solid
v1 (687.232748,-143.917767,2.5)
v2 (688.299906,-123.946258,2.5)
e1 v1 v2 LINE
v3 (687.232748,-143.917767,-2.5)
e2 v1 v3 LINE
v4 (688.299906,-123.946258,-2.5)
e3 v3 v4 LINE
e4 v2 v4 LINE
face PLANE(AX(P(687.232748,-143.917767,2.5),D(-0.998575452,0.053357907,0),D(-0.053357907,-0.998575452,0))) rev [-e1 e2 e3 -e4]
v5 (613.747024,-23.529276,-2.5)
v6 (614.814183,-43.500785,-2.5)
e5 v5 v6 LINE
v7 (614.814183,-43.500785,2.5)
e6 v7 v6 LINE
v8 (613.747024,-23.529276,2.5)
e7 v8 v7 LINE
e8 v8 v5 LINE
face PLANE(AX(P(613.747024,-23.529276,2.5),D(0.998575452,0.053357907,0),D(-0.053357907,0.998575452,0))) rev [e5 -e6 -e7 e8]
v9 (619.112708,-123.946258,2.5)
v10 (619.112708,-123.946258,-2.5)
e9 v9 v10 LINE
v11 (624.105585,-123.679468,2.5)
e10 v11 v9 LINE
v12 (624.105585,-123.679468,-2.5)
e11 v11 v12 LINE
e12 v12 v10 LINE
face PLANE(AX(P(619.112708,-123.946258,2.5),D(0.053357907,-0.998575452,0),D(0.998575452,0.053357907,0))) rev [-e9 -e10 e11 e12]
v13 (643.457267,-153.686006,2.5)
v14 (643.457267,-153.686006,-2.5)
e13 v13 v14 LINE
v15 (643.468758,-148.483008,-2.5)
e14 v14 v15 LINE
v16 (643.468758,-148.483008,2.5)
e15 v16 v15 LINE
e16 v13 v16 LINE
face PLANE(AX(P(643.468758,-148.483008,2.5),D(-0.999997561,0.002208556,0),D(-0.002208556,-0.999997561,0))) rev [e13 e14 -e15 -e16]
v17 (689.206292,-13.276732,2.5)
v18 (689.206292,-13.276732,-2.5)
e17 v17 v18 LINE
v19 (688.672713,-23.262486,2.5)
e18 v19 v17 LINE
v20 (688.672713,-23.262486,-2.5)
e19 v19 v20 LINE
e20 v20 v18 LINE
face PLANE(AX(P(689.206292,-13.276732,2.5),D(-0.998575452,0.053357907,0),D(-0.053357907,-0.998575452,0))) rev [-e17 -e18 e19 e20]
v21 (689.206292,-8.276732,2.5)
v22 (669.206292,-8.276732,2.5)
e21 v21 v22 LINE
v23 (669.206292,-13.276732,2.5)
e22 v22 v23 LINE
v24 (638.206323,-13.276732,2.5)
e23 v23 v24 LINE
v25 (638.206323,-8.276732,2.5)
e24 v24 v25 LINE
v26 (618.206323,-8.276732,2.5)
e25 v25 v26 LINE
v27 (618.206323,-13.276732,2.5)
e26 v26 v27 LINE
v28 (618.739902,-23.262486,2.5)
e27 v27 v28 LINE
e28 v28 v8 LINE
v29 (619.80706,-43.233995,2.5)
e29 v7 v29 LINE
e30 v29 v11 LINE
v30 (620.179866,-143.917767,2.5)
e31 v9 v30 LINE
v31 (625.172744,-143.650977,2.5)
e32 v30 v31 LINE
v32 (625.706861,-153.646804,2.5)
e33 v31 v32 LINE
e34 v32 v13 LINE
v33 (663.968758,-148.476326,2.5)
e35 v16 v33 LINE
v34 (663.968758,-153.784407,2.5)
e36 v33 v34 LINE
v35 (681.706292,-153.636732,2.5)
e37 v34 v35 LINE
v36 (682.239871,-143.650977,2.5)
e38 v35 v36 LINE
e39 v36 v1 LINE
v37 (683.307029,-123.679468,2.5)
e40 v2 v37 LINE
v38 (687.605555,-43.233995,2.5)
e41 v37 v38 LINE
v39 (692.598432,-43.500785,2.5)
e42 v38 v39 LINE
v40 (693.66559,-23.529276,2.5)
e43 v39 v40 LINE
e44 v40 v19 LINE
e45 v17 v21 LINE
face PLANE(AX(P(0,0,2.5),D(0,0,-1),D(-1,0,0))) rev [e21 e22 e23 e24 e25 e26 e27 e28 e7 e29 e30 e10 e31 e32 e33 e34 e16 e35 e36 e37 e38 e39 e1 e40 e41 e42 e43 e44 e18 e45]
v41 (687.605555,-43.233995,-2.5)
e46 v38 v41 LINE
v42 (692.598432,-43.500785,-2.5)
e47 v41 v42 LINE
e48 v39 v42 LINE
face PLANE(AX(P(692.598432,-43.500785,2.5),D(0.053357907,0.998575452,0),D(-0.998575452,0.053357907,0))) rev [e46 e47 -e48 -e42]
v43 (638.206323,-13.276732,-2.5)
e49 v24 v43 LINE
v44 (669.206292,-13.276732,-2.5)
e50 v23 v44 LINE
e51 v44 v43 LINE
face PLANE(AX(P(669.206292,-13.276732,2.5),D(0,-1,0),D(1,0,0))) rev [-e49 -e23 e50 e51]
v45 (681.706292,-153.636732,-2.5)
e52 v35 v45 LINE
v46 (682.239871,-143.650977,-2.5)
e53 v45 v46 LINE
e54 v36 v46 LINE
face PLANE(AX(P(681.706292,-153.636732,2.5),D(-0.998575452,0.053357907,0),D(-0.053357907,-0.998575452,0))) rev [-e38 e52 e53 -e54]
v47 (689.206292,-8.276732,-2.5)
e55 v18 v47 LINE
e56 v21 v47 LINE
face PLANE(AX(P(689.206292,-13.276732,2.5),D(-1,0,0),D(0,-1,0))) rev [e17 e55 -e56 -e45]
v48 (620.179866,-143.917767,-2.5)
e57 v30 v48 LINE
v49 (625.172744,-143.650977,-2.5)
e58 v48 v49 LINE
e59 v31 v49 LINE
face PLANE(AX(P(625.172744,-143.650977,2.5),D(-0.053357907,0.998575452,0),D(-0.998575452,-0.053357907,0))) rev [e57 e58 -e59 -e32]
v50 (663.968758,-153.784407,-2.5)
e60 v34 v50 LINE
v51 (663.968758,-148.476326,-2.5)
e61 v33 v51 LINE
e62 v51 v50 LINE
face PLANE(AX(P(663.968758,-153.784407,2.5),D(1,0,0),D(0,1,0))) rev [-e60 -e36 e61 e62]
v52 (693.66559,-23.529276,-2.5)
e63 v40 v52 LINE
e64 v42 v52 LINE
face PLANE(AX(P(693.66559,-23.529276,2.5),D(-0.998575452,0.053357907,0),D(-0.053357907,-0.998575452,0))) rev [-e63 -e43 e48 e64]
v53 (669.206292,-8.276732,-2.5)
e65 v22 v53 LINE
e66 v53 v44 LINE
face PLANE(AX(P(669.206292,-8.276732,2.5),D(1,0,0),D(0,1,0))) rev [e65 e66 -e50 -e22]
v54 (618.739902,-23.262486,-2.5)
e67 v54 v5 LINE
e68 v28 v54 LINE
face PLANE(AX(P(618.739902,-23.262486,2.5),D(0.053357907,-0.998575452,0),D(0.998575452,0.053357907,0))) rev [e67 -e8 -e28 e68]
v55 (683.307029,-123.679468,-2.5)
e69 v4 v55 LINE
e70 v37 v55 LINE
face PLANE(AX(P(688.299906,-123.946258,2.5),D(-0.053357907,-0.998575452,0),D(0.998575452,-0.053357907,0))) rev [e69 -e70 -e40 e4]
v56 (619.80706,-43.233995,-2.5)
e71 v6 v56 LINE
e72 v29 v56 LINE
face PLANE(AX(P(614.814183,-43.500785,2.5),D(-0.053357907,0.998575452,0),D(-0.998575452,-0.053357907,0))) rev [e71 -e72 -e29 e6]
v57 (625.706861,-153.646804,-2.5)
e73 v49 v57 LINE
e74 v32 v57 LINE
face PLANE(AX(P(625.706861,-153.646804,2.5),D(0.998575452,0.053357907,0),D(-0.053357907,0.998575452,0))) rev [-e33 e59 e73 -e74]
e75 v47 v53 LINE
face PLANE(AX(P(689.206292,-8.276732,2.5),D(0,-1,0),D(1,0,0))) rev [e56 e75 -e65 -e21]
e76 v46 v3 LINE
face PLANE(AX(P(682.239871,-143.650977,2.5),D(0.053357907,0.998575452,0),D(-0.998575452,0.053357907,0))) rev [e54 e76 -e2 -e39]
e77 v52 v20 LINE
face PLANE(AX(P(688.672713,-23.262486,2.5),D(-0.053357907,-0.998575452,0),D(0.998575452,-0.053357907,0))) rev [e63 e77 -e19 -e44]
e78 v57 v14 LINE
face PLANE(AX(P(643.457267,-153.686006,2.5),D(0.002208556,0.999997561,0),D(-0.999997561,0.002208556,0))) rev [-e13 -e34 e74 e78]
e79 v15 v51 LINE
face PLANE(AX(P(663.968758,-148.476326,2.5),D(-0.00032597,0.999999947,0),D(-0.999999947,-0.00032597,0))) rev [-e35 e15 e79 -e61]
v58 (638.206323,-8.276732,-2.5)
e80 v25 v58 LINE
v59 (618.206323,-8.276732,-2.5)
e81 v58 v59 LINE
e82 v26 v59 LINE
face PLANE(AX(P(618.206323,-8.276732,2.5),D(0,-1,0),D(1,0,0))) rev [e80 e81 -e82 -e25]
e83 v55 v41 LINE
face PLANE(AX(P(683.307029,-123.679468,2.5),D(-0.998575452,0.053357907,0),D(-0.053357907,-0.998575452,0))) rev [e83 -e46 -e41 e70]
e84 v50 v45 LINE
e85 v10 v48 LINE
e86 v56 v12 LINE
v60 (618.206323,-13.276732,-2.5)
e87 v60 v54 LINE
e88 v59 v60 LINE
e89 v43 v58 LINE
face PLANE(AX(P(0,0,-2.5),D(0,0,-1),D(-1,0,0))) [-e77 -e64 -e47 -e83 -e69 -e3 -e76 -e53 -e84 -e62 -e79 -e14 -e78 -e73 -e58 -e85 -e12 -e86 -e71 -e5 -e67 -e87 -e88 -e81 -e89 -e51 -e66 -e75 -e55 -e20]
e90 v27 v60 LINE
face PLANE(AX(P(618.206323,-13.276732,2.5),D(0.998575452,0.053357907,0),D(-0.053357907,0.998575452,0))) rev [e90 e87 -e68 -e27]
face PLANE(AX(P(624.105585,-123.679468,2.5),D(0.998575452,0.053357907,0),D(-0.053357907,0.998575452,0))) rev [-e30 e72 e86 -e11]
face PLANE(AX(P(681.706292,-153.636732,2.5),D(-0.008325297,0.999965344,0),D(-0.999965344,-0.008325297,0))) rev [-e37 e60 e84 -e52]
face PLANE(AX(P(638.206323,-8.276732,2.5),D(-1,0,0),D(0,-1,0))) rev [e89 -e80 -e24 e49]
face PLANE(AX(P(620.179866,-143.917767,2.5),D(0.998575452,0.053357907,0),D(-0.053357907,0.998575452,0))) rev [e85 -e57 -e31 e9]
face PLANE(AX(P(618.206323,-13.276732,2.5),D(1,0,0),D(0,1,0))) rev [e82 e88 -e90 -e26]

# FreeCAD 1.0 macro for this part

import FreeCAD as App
import Part
import Sketcher

doc = App.newDocument("Part")
body = doc.addObject("PartDesign::Body", "Body")

sketch1 = body.newObject("Sketcher::SketchObject", "Sketch")
sketch1.AttachmentSupport = (doc.getObject("XY_Plane"), [""])
sketch1.MapMode = "FlatFace"
sketch1.addGeometry([
    Part.LineSegment(App.Vector(681.706292, -153.636732, 0), App.Vector(682.239871, -143.650977, 0)),
    Part.LineSegment(App.Vector(682.239871, -143.650977, 0), App.Vector(687.232748, -143.917767, 0)),
    Part.LineSegment(App.Vector(687.232748, -143.917767, 0), App.Vector(688.299906, -123.946258, 0)),
    Part.LineSegment(App.Vector(688.299906, -123.946258, 0), App.Vector(683.307029, -123.679468, 0)),
    Part.LineSegment(App.Vector(683.307029, -123.679468, 0), App.Vector(687.605555, -43.233995, 0)),
    Part.LineSegment(App.Vector(687.605555, -43.233995, 0), App.Vector(692.598432, -43.500785, 0)),
    Part.LineSegment(App.Vector(692.598432, -43.500785, 0), App.Vector(693.66559, -23.529276, 0)),
    Part.LineSegment(App.Vector(693.66559, -23.529276, 0), App.Vector(688.672713, -23.262486, 0)),
    Part.LineSegment(App.Vector(688.672713, -23.262486, 0), App.Vector(689.206292, -13.276732, 0)),
    Part.LineSegment(App.Vector(689.206292, -13.276732, 0), App.Vector(689.206292, -8.276732, 0)),
    Part.LineSegment(App.Vector(689.206292, -8.276732, 0), App.Vector(669.206292, -8.276732, 0)),
    Part.LineSegment(App.Vector(669.206292, -8.276732, 0), App.Vector(669.206292, -13.276732, 0)),
    Part.LineSegment(App.Vector(669.206292, -13.276732, 0), App.Vector(638.206323, -13.276732, 0)),
    Part.LineSegment(App.Vector(638.206323, -13.276732, 0), App.Vector(638.206323, -8.276732, 0)),
    Part.LineSegment(App.Vector(638.206323, -8.276732, 0), App.Vector(618.206323, -8.276732, 0)),
    Part.LineSegment(App.Vector(618.206323, -8.276732, 0), App.Vector(618.206323, -13.276732, 0)),
    Part.LineSegment(App.Vector(618.206323, -13.276732, 0), App.Vector(618.739902, -23.262486, 0)),
    Part.LineSegment(App.Vector(618.739902, -23.262486, 0), App.Vector(613.747024, -23.529276, 0)),
    Part.LineSegment(App.Vector(613.747024, -23.529276, 0), App.Vector(614.814183, -43.500785, 0)),
    Part.LineSegment(App.Vector(614.814183, -43.500785, 0), App.Vector(619.80706, -43.233995, 0)),
    Part.LineSegment(App.Vector(619.80706, -43.233995, 0), App.Vector(624.105585, -123.679468, 0)),
    Part.LineSegment(App.Vector(624.105585, -123.679468, 0), App.Vector(619.112708, -123.946258, 0)),
    Part.LineSegment(App.Vector(619.112708, -123.946258, 0), App.Vector(620.179866, -143.917767, 0)),
    Part.LineSegment(App.Vector(620.179866, -143.917767, 0), App.Vector(625.172744, -143.650977, 0)),
    Part.LineSegment(App.Vector(625.172744, -143.650977, 0), App.Vector(625.706861, -153.646804, 0)),
    Part.LineSegment(App.Vector(625.706861, -153.646804, 0), App.Vector(643.457267, -153.686006, 0)),
    Part.LineSegment(App.Vector(643.457267, -153.686006, 0), App.Vector(643.468758, -148.483008, 0)),
    Part.LineSegment(App.Vector(643.468758, -148.483008, 0), App.Vector(663.968758, -148.476326, 0)),
    Part.LineSegment(App.Vector(663.968758, -148.476326, 0), App.Vector(663.968758, -153.784407, 0)),
    Part.LineSegment(App.Vector(663.968758, -153.784407, 0), App.Vector(681.706292, -153.636732, 0)),
], False)
sketch1.addConstraint([
    Sketcher.Constraint("Coincident", 0, 2, 1, 1),
    Sketcher.Constraint("Coincident", 1, 2, 2, 1),
    Sketcher.Constraint("Coincident", 2, 2, 3, 1),
    Sketcher.Constraint("Coincident", 3, 2, 4, 1),
    Sketcher.Constraint("Coincident", 4, 2, 5, 1),
    Sketcher.Constraint("Coincident", 5, 2, 6, 1),
    Sketcher.Constraint("Coincident", 6, 2, 7, 1),
    Sketcher.Constraint("Coincident", 7, 2, 8, 1),
    Sketcher.Constraint("Coincident", 8, 2, 9, 1),
    Sketcher.Constraint("Coincident", 9, 2, 10, 1),
    Sketcher.Constraint("Coincident", 10, 2, 11, 1),
    Sketcher.Constraint("Coincident", 11, 2, 12, 1),
    Sketcher.Constraint("Coincident", 12, 2, 13, 1),
    Sketcher.Constraint("Coincident", 13, 2, 14, 1),
    Sketcher.Constraint("Coincident", 14, 2, 15, 1),
    Sketcher.Constraint("Coincident", 15, 2, 16, 1),
    Sketcher.Constraint("Coincident", 16, 2, 17, 1),
    Sketcher.Constraint("Coincident", 17, 2, 18, 1),
    Sketcher.Constraint("Coincident", 18, 2, 19, 1),
    Sketcher.Constraint("Coincident", 19, 2, 20, 1),
    Sketcher.Constraint("Coincident", 20, 2, 21, 1),
    Sketcher.Constraint("Coincident", 21, 2, 22, 1),
    Sketcher.Constraint("Coincident", 22, 2, 23, 1),
    Sketcher.Constraint("Coincident", 23, 2, 24, 1),
    Sketcher.Constraint("Coincident", 24, 2, 25, 1),
    Sketcher.Constraint("Coincident", 25, 2, 26, 1),
    Sketcher.Constraint("Coincident", 26, 2, 27, 1),
    Sketcher.Constraint("Coincident", 27, 2, 28, 1),
    Sketcher.Constraint("Coincident", 28, 2, 29, 1),
    Sketcher.Constraint("Coincident", 29, 2, 0, 1),
    Sketcher.Constraint("Vertical", 9),
    Sketcher.Constraint("Horizontal", 10),
    Sketcher.Constraint("Vertical", 11),
    Sketcher.Constraint("Horizontal", 12),
    Sketcher.Constraint("Vertical", 13),
    Sketcher.Constraint("Horizontal", 14),
    Sketcher.Constraint("Vertical", 15),
    Sketcher.Constraint("Vertical", 28),
    Sketcher.Constraint("DistanceX", 10, 2, 10, 1, 20.0),
    Sketcher.Constraint("DistanceX", 14, 2, 14, 1, 20.0),
    Sketcher.Constraint("DistanceY", 9, 1, 9, 2, 5.0),
    Sketcher.Constraint("DistanceY", 11, 2, 11, 1, 5.0),
    Sketcher.Constraint("DistanceY", 13, 1, 13, 2, 5.0),
    Sketcher.Constraint("DistanceY", 15, 2, 15, 1, 5.0),
    Sketcher.Constraint("Distance", 0, 10.0),
    Sketcher.Constraint("Distance", 1, 5.0),
    Sketcher.Constraint("Distance", 2, 20.0),
    Sketcher.Constraint("Distance", 3, 5.0),
    Sketcher.Constraint("Distance", 5, 5.0),
    Sketcher.Constraint("Distance", 6, 20.0),
    Sketcher.Constraint("Distance", 7, 5.0),
    Sketcher.Constraint("Distance", 8, 10.0),
    Sketcher.Constraint("Distance", 16, 10.0),
    Sketcher.Constraint("Distance", 17, 5.0),
    Sketcher.Constraint("Distance", 18, 20.0),
    Sketcher.Constraint("Distance", 19, 5.0),
    Sketcher.Constraint("Distance", 21, 5.0),
    Sketcher.Constraint("Distance", 22, 20.0),
    Sketcher.Constraint("Distance", 23, 5.0),
    Sketcher.Constraint("Distance", 27, 20.5),
    Sketcher.Constraint("DistanceY", 25, 2, 26, 2, 5.202998),
    Sketcher.Constraint("DistanceX", 12, 2, 12, 1, 30.999969),
    Sketcher.Constraint("DistanceY", 28, 2, 28, 1, 5.308081),
    Sketcher.Constraint("DistanceX", -1, 1, 16, 2, 618.739902),
    Sketcher.Constraint("DistanceY", 1, 2, 3, 2, 20.238299),
    Sketcher.Constraint("DistanceY", 5, 2, 7, 2, 20.238299),
    Sketcher.Constraint("DistanceX", 8, 2, 6, 2, 4.459298),
    Sketcher.Constraint("DistanceX", 17, 2, 15, 2, 4.459298),
    Sketcher.Constraint("DistanceY", 18, 2, 16, 2, 20.238299),
    Sketcher.Constraint("DistanceY", 1, 2, 20, 2, 20.238299),
    Sketcher.Constraint("DistanceX", 21, 2, 2, 2, 69.187198),
    Sketcher.Constraint("DistanceY", 22, 2, 20, 2, 20.238299),
    Sketcher.Constraint("DistanceX", 22, 2, 25, 2, 23.277401),
    Sketcher.Constraint("DistanceY", 28, 2, 25, 2, 0.098401),
    Sketcher.Constraint("Distance", 25, 17.75045),
    Sketcher.Constraint("Distance", 29, 17.738149),
    Sketcher.Constraint("DistanceX", -1, 1, 0, 2, 682.239871),
    Sketcher.Constraint("DistanceX", -1, 1, 1, 2, 687.232748),
    Sketcher.Constraint("DistanceX", -1, 1, 3, 2, 683.307029),
    Sketcher.Constraint("DistanceY", 3, 2, -1, 1, 123.679468),
    Sketcher.Constraint("DistanceX", -1, 1, 5, 2, 692.598432),
    Sketcher.Constraint("DistanceY", 8, 2, -1, 1, 13.276732),
    Sketcher.Constraint("DistanceX", -1, 1, 19, 2, 619.80706),
    Sketcher.Constraint("DistanceX", -1, 1, 24, 2, 625.706861),
    Sketcher.Constraint("DistanceX", -1, 1, 26, 2, 643.468758),
    Sketcher.Constraint("DistanceY", 26, 2, -1, 1, 148.483008),
    Sketcher.Constraint("DistanceX", 4, 2, 2, 2, 0.694352),
    Sketcher.Constraint("DistanceX", 17, 2, 18, 2, 1.067158),
    Sketcher.Constraint("DistanceY", 22, 2, 23, 2, 0.26679),
    Sketcher.Constraint("Distance", 24, 10.010086),
])
pad1 = body.newObject("PartDesign::Pad", "Pad")
pad1.Profile = sketch1
pad1.Length = 5
pad1.Midplane = True

doc.recompute()
